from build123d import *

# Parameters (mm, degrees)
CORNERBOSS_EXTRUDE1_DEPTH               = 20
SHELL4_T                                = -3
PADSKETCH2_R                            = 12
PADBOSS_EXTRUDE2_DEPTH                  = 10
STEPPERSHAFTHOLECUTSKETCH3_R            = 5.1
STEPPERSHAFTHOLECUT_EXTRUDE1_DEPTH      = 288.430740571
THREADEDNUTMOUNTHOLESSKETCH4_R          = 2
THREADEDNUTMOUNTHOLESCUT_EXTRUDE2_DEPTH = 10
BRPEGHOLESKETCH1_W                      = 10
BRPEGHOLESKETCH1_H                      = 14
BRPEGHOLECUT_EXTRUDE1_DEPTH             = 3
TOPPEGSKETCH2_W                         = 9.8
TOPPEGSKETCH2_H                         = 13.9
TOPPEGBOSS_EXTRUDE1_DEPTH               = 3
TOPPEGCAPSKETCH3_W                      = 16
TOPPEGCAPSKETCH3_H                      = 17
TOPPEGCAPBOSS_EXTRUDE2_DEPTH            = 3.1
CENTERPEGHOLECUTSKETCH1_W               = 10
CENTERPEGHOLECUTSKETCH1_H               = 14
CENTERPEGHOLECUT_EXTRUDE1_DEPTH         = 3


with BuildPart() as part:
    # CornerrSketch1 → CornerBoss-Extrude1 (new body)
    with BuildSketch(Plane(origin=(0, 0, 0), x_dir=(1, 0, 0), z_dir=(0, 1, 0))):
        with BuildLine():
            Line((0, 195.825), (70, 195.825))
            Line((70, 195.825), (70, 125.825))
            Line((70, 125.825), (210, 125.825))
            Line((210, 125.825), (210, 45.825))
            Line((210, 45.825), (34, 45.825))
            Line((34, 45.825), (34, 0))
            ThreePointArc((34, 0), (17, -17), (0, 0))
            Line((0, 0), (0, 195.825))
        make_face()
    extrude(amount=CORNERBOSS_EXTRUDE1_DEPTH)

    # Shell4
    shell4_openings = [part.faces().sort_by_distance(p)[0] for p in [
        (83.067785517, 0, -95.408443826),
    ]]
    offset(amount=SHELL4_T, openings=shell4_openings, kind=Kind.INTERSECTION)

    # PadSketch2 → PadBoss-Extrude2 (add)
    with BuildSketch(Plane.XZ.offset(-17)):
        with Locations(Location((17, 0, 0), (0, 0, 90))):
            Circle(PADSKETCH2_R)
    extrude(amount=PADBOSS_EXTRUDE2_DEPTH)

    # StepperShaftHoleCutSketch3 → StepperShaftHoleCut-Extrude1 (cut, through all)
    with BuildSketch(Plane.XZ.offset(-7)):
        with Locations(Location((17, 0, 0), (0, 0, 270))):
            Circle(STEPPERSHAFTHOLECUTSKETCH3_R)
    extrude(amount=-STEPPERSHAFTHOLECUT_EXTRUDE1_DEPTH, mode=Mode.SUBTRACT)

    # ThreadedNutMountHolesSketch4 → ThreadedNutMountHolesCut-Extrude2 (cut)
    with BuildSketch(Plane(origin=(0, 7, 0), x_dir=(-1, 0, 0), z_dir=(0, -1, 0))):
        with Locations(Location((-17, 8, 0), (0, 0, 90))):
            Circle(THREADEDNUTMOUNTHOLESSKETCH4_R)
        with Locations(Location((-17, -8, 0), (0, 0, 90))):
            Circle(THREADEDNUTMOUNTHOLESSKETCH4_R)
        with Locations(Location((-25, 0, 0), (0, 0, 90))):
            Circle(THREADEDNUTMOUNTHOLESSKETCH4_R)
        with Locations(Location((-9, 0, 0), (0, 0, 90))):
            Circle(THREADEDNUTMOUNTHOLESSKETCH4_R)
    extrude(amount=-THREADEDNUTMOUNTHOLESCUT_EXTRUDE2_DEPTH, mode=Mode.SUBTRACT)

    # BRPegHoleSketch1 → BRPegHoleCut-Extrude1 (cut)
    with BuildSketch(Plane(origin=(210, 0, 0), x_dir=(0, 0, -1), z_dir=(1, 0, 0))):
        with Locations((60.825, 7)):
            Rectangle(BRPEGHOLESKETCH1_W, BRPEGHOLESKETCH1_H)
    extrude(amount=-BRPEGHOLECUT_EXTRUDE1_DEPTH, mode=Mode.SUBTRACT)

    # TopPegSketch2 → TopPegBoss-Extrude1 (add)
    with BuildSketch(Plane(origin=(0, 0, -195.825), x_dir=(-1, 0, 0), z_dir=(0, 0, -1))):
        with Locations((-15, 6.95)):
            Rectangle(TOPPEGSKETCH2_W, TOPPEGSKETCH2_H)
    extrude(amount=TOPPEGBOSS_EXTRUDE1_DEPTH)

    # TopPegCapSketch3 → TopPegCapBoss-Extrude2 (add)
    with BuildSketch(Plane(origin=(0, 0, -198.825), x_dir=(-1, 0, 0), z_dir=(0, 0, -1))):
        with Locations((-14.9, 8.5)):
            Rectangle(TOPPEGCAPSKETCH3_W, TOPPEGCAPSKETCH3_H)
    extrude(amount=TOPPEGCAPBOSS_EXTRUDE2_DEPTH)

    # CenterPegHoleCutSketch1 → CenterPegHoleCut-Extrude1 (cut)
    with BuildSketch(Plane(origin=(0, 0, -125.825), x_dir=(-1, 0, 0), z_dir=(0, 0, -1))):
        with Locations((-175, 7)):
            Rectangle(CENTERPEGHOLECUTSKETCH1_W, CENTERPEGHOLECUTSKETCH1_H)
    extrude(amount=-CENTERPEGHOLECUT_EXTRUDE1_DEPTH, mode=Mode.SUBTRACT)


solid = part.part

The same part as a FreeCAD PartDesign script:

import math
import FreeCAD as App
import Part
import Sketcher

V = App.Vector


def faces_at(feature, points):
    """Names of the faces that lie closest to the given points."""
    faces = feature.Shape.Faces
    near = lambda p: min(range(len(faces)), key=lambda i: faces[i].distToShape(Part.Vertex(*p))[0])
    return sorted({f"Face{near(p) + 1}" for p in points})

doc = App.newDocument("Part")
body = doc.addObject("PartDesign::Body", "Body")

sketch1 = body.newObject("Sketcher::SketchObject", "Sketch")
sketch1.AttachmentSupport = (doc.getObject("XZ_Plane"), [""])
sketch1.MapMode = "FlatFace"
sketch1.addGeometry([
    Part.LineSegment(V(70, -196, 0), V(0, -196, 0)),
    Part.LineSegment(V(0, -196, 0), V(0, 0, 0)),
    Part.ArcOfCircle(Part.Circle(V(17, 0, 0), V(0, 0, 1), 17), math.radians(0), math.radians(180)),
    Part.LineSegment(V(34, 0, 0), V(34, -46, 0)),
    Part.LineSegment(V(34, -46, 0), V(210, -46, 0)),
    Part.LineSegment(V(210, -46, 0), V(210, -126, 0)),
    Part.LineSegment(V(210, -126, 0), V(70, -126, 0)),
    Part.LineSegment(V(70, -126, 0), V(70, -196, 0)),
], False)
sketch1.addConstraint([
    Sketcher.Constraint("Coincident", 0, 2, 1, 1),
    Sketcher.Constraint("Tangent", 1, 2, 2, 2),
    Sketcher.Constraint("Tangent", 2, 1, 3, 1),
    Sketcher.Constraint("Coincident", 3, 2, 4, 1),
    Sketcher.Constraint("Coincident", 4, 2, 5, 1),
    Sketcher.Constraint("Coincident", 5, 2, 6, 1),
    Sketcher.Constraint("Coincident", 6, 2, 7, 1),
    Sketcher.Constraint("Coincident", 7, 2, 0, 1),
    Sketcher.Constraint("Horizontal", 0),
    Sketcher.Constraint("Vertical", 1),
    Sketcher.Constraint("Vertical", 3),
    Sketcher.Constraint("Horizontal", 4),
    Sketcher.Constraint("Vertical", 5),
    Sketcher.Constraint("Horizontal", 6),
    Sketcher.Constraint("Vertical", 7),
    Sketcher.Constraint("Coincident", 1, 2, -1, 1),
    Sketcher.Constraint("Equal", 0, 7),
    Sketcher.Constraint("Radius", 2, 17.0),
    Sketcher.Constraint("DistanceX", 0, 2, 0, 1, 70.0),
    Sketcher.Constraint("DistanceX", 4, 1, 4, 2, 176.0),
    Sketcher.Constraint("DistanceY", 5, 2, 5, 1, 80.0),
    Sketcher.Constraint("DistanceY", 1, 1, 1, 2, 195.825),
])
pad1 = body.newObject("PartDesign::Pad", "Pad")
pad1.Profile = sketch1
pad1.Length = 20
pad1.Reversed = True
doc.recompute()

thickness = body.newObject("PartDesign::Thickness", "Thickness")
thickness.Base = (pad1, faces_at(pad1, [(105, 0, -89.412)]))
thickness.Value = 3
thickness.Reversed = True
thickness.Join = "Intersection"

sketch2 = body.newObject("Sketcher::SketchObject", "Sketch001")
sketch2.AttachmentSupport = (doc.getObject("XZ_Plane"), [""])
sketch2.MapMode = "FlatFace"
sketch2.AttachmentOffset = App.Placement(V(0, 0, -17), App.Rotation())
sketch2.addGeometry(Part.Circle(V(17, 0, 0), V(0, 0, 1), 12), False)
sketch2.addConstraint([
    Sketcher.Constraint("PointOnObject", 0, 3, -1),
    Sketcher.Constraint("Diameter", 0, 24.0),
    Sketcher.Constraint("DistanceX", -1, 1, 0, 3, 17.0),
])
pad2 = body.newObject("PartDesign::Pad", "Pad001")
pad2.Profile = sketch2
pad2.Length = 10

sketch3 = body.newObject("Sketcher::SketchObject", "Sketch002")
sketch3.AttachmentSupport = (doc.getObject("XZ_Plane"), [""])
sketch3.MapMode = "FlatFace"
sketch3.AttachmentOffset = App.Placement(V(0, 0, -7), App.Rotation())
sketch3.addGeometry(Part.Circle(V(17, 0, 0), V(0, 0, 1), 5), False)
sketch3.addConstraint([
    Sketcher.Constraint("PointOnObject", 0, 3, -1),
    Sketcher.Constraint("Diameter", 0, 10.2),
    Sketcher.Constraint("DistanceX", -1, 1, 0, 3, 17.0),
])
pocket1 = body.newObject("PartDesign::Pocket", "Pocket")
pocket1.Profile = sketch3
pocket1.Type = "ThroughAll"

sketch4 = body.newObject("Sketcher::SketchObject", "Sketch003")
sketch4.AttachmentSupport = (doc.getObject("XZ_Plane"), [""])
sketch4.MapMode = "FlatFace"
sketch4.AttachmentOffset = App.Placement(V(0, 0, -7), App.Rotation())
sketch4.addGeometry([
    Part.Circle(V(17, -8, 0), V(0, 0, 1), 2),
    Part.Circle(V(17, 8, 0), V(0, 0, 1), 2),
    Part.Circle(V(25, 0, 0), V(0, 0, 1), 2),
    Part.Circle(V(9, 0, 0), V(0, 0, 1), 2),
], False)
sketch4.addConstraint([
    Sketcher.Constraint("Equal", 0, 1),
    Sketcher.Constraint("Equal", 1, 2),
    Sketcher.Constraint("Equal", 2, 3),
    Sketcher.Constraint("Symmetric", 0, 3, 1, 3, -1),
    Sketcher.Constraint("PointOnObject", 2, 3, -1),
    Sketcher.Constraint("PointOnObject", 3, 3, -1),
    Sketcher.Constraint("Diameter", 0, 4.0),
    Sketcher.Constraint("DistanceX", -1, 1, 0, 3, 17.0),
    Sketcher.Constraint("DistanceY", 0, 3, -1, 1, 8.0),
    Sketcher.Constraint("DistanceX", -1, 1, 2, 3, 25.0),
    Sketcher.Constraint("DistanceX", -1, 1, 3, 3, 9.0),
])
pocket2 = body.newObject("PartDesign::Pocket", "Pocket001")
pocket2.Profile = sketch4
pocket2.Length = 10

sketch5 = body.newObject("Sketcher::SketchObject", "Sketch004")
sketch5.AttachmentSupport = (doc.getObject("YZ_Plane"), [""])
sketch5.MapMode = "FlatFace"
sketch5.AttachmentOffset = App.Placement(V(0, 0, 210), App.Rotation())
sketch5.addGeometry([
    Part.LineSegment(V(14, -56, 0), V(0, -56, 0)),
    Part.LineSegment(V(0, -56, 0), V(0, -66, 0)),
    Part.LineSegment(V(0, -66, 0), V(14, -66, 0)),
    Part.LineSegment(V(14, -66, 0), V(14, -56, 0)),
], False)
sketch5.addConstraint([
    Sketcher.Constraint("Coincident", 0, 2, 1, 1),
    Sketcher.Constraint("Coincident", 1, 2, 2, 1),
    Sketcher.Constraint("Coincident", 2, 2, 3, 1),
    Sketcher.Constraint("Coincident", 3, 2, 0, 1),
    Sketcher.Constraint("Horizontal", 0),
    Sketcher.Constraint("Vertical", 1),
    Sketcher.Constraint("Horizontal", 2),
    Sketcher.Constraint("Vertical", 3),
    Sketcher.Constraint("PointOnObject", 0, 2, -2),
    Sketcher.Constraint("DistanceX", 0, 2, 0, 1, 14.0),
    Sketcher.Constraint("DistanceY", 1, 2, 1, 1, 10.0),
    Sketcher.Constraint("DistanceY", 0, 2, -1, 1, 55.825),
])
pocket3 = body.newObject("PartDesign::Pocket", "Pocket002")
pocket3.Profile = sketch5
pocket3.Length = 3

sketch6 = body.newObject("Sketcher::SketchObject", "Sketch005")
sketch6.AttachmentSupport = (doc.getObject("XY_Plane"), [""])
sketch6.MapMode = "FlatFace"
sketch6.AttachmentOffset = App.Placement(V(0, 0, -195.825), App.Rotation())
sketch6.addGeometry([
    Part.LineSegment(V(20, 14, 0), V(20, 0, 0)),
    Part.LineSegment(V(20, 0, 0), V(10, 0, 0)),
    Part.LineSegment(V(10, 0, 0), V(10, 14, 0)),
    Part.LineSegment(V(10, 14, 0), V(20, 14, 0)),
], False)
sketch6.addConstraint([
    Sketcher.Constraint("Coincident", 0, 2, 1, 1),
    Sketcher.Constraint("Coincident", 1, 2, 2, 1),
    Sketcher.Constraint("Coincident", 2, 2, 3, 1),
    Sketcher.Constraint("Coincident", 3, 2, 0, 1),
    Sketcher.Constraint("Vertical", 0),
    Sketcher.Constraint("Horizontal", 1),
    Sketcher.Constraint("Vertical", 2),
    Sketcher.Constraint("Horizontal", 3),
    Sketcher.Constraint("PointOnObject", 0, 2, -1),
    Sketcher.Constraint("DistanceX", 1, 2, 1, 1, 9.8),
    Sketcher.Constraint("DistanceY", 0, 2, 0, 1, 13.9),
    Sketcher.Constraint("DistanceX", -1, 1, 0, 2, 19.9),
])
pad3 = body.newObject("PartDesign::Pad", "Pad002")
pad3.Profile = sketch6
pad3.Length = 3
pad3.Reversed = True

sketch7 = body.newObject("Sketcher::SketchObject", "Sketch006")
sketch7.AttachmentSupport = (doc.getObject("XY_Plane"), [""])
sketch7.MapMode = "FlatFace"
sketch7.AttachmentOffset = App.Placement(V(0, 0, -198.825), App.Rotation())
sketch7.addGeometry([
    Part.LineSegment(V(23, 17, 0), V(23, 0, 0)),
    Part.LineSegment(V(23, 0, 0), V(7, 0, 0)),
    Part.LineSegment(V(7, 0, 0), V(7, 17, 0)),
    Part.LineSegment(V(7, 17, 0), V(23, 17, 0)),
], False)
sketch7.addConstraint([
    Sketcher.Constraint("Coincident", 0, 2, 1, 1),
    Sketcher.Constraint("Coincident", 1, 2, 2, 1),
    Sketcher.Constraint("Coincident", 2, 2, 3, 1),
    Sketcher.Constraint("Coincident", 3, 2, 0, 1),
    Sketcher.Constraint("Vertical", 0),
    Sketcher.Constraint("Horizontal", 1),
    Sketcher.Constraint("Vertical", 2),
    Sketcher.Constraint("Horizontal", 3),
    Sketcher.Constraint("PointOnObject", 0, 2, -1),
    Sketcher.Constraint("DistanceX", 1, 2, 1, 1, 16.0),
    Sketcher.Constraint("DistanceY", 0, 2, 0, 1, 17.0),
    Sketcher.Constraint("DistanceX", -1, 1, 0, 2, 22.9),
])
pad4 = body.newObject("PartDesign::Pad", "Pad003")
pad4.Profile = sketch7
pad4.Length = 3.1
pad4.Reversed = True

sketch8 = body.newObject("Sketcher::SketchObject", "Sketch007")
sketch8.AttachmentSupport = (doc.getObject("XY_Plane"), [""])
sketch8.MapMode = "FlatFace"
sketch8.AttachmentOffset = App.Placement(V(0, 0, -125.825), App.Rotation())
sketch8.addGeometry([
    Part.LineSegment(V(180, 14, 0), V(180, 0, 0)),
    Part.LineSegment(V(180, 0, 0), V(170, 0, 0)),
    Part.LineSegment(V(170, 0, 0), V(170, 14, 0)),
    Part.LineSegment(V(170, 14, 0), V(180, 14, 0)),
], False)
sketch8.addConstraint([
    Sketcher.Constraint("Coincident", 0, 2, 1, 1),
    Sketcher.Constraint("Coincident", 1, 2, 2, 1),
    Sketcher.Constraint("Coincident", 2, 2, 3, 1),
    Sketcher.Constraint("Coincident", 3, 2, 0, 1),
    Sketcher.Constraint("Vertical", 0),
    Sketcher.Constraint("Horizontal", 1),
    Sketcher.Constraint("Vertical", 2),
    Sketcher.Constraint("Horizontal", 3),
    Sketcher.Constraint("PointOnObject", 0, 2, -1),
    Sketcher.Constraint("DistanceX", 1, 2, 1, 1, 10.0),
    Sketcher.Constraint("DistanceY", 0, 2, 0, 1, 14.0),
    Sketcher.Constraint("DistanceX", -1, 1, 0, 2, 180.0),
])
pocket4 = body.newObject("PartDesign::Pocket", "Pocket003")
pocket4.Profile = sketch8
pocket4.Length = 3
pocket4.Reversed = True

doc.recompute()
